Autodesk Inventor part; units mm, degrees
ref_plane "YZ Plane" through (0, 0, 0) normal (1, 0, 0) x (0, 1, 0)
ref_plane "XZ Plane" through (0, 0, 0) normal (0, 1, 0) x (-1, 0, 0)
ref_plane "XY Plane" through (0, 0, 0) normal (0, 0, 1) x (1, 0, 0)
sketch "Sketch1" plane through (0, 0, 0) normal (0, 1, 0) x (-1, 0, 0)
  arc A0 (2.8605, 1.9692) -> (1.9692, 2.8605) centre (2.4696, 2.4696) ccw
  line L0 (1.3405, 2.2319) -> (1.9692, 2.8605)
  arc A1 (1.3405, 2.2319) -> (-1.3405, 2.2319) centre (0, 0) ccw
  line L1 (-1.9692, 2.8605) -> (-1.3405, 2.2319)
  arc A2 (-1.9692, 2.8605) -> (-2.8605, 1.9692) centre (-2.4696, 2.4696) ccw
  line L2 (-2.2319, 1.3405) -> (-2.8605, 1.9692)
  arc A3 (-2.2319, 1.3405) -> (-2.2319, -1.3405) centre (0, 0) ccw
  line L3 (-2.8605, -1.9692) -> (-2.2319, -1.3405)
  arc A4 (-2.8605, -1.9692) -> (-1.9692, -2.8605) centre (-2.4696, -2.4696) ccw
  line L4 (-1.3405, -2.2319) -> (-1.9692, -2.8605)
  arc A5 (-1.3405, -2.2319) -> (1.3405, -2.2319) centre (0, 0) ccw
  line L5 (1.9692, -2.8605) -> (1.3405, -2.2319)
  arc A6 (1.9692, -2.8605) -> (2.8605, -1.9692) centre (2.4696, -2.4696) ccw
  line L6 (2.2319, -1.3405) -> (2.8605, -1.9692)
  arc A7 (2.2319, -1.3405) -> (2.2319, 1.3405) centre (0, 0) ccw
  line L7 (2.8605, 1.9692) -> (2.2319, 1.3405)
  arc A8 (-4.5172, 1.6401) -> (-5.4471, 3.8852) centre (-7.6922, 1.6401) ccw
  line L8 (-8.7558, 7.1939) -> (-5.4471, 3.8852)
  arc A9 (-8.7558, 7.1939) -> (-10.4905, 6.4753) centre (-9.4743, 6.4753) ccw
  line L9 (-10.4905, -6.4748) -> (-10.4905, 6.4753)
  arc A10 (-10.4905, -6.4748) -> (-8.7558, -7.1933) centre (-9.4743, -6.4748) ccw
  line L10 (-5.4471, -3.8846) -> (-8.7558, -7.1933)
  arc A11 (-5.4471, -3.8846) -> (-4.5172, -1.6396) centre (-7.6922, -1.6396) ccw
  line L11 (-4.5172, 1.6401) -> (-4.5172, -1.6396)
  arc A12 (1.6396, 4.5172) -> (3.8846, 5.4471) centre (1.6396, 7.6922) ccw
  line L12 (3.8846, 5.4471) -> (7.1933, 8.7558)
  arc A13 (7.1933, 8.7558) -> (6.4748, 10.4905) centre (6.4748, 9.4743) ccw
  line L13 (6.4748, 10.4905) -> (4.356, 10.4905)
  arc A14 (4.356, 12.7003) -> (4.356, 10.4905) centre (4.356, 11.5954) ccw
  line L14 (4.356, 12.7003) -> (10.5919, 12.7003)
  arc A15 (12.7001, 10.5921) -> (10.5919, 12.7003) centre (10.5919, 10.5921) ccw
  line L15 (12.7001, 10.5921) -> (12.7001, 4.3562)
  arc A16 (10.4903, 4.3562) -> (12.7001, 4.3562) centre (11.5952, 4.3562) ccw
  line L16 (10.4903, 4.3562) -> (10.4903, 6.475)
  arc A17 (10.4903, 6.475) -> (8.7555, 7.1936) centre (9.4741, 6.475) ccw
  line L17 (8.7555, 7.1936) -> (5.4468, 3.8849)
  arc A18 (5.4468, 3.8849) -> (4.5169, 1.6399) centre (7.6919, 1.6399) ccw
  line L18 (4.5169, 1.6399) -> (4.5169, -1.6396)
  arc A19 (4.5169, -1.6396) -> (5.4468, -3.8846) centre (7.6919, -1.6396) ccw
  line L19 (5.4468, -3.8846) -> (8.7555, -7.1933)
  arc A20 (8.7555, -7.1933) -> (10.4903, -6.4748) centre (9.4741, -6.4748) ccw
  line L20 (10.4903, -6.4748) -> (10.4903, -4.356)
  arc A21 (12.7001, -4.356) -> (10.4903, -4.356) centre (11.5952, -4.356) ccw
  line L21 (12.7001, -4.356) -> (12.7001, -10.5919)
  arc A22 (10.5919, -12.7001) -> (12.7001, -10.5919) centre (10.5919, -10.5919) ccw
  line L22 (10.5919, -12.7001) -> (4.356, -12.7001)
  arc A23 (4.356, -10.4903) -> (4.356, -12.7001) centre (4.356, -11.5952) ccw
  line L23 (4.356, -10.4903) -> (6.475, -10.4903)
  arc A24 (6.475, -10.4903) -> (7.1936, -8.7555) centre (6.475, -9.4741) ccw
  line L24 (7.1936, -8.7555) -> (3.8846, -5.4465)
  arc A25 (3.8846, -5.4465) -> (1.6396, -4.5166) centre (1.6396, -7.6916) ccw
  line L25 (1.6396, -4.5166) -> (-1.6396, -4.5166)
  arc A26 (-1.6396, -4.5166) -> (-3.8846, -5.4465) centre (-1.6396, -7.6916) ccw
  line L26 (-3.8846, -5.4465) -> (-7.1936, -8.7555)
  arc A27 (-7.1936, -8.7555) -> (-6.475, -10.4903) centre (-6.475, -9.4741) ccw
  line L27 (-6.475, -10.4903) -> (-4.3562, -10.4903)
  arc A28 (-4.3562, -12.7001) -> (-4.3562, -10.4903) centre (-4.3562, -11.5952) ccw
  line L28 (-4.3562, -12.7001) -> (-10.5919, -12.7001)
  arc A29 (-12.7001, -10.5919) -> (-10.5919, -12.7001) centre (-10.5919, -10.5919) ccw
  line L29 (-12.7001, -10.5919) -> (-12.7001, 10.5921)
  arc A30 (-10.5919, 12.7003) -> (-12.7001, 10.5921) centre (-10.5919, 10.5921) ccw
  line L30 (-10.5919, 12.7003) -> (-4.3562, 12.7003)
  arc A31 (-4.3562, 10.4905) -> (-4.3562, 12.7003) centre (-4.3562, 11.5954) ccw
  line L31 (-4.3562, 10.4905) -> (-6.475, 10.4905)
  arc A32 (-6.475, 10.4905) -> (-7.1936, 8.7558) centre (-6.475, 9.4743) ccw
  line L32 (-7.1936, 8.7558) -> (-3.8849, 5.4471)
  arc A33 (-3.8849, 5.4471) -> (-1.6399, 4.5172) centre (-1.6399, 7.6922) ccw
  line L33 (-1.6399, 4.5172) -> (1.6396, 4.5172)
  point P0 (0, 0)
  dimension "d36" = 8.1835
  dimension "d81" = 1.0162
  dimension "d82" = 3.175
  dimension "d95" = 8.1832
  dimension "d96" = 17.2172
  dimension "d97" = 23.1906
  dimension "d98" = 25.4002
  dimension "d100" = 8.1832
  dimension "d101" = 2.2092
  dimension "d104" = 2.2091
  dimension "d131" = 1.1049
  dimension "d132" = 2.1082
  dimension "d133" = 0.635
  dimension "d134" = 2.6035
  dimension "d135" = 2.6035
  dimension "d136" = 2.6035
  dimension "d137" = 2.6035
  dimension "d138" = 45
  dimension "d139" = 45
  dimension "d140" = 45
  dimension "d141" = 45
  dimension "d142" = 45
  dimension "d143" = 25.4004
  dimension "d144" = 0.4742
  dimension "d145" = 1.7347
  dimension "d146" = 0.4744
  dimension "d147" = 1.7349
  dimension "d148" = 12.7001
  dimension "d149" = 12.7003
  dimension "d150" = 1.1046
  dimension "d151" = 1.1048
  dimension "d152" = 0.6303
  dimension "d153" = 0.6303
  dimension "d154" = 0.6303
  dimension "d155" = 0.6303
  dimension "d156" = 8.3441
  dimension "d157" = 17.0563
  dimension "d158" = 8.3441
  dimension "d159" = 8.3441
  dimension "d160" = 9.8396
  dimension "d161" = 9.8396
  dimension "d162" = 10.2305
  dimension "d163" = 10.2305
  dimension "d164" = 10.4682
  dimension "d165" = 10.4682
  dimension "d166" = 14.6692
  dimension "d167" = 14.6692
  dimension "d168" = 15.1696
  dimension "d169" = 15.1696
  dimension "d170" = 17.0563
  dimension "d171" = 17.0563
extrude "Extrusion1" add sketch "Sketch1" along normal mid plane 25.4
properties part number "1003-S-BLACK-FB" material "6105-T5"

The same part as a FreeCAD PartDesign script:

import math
import FreeCAD as App
import Part
import Sketcher
from FreeCAD import Vector
Q = App.Units.Quantity

doc = App.newDocument("Part")
body = doc.addObject("PartDesign::Body", "Body")

# Sketch on XZ plane
sketch1 = body.newObject("Sketcher::SketchObject", "Sketch")
sketch1.AttachmentSupport = (doc.getObject("XZ_Plane"), [""])
sketch1.MapMode = "FlatFace"
sketch1.addGeometry([
    Part.ArcOfCircle(Part.Circle(Vector(-1.6396, 7.6922, 0), Vector(0, 0, 1), 3.175), math.radians(-134.998724), math.radians(-90)),  # 0
    Part.LineSegment(Vector(-1.6396, 4.5172, 0), Vector(1.6399, 4.5172, 0)),  # 1
    Part.ArcOfCircle(Part.Circle(Vector(1.6399, 7.6922, 0), Vector(0, 0, 1), 3.17498), math.radians(-90), math.radians(-45.001276)),  # 2
    Part.LineSegment(Vector(3.8849, 5.4471, 0), Vector(7.1936, 8.7558, 0)),  # 3
    Part.ArcOfCircle(Part.Circle(Vector(6.475, 9.4743, 0), Vector(0, 0, 1), 1.0162), math.radians(-44.996013), math.radians(90)),  # 4
    Part.LineSegment(Vector(6.475, 10.4905, 0), Vector(4.3562, 10.4905, 0)),  # 5
    Part.ArcOfCircle(Part.Circle(Vector(4.3562, 11.5954, 0), Vector(0, 0, 1), 1.1049), math.radians(90), math.radians(270)),  # 6
    Part.LineSegment(Vector(4.3562, 12.7003, 0), Vector(10.5919, 12.7003, 0)),  # 7
    Part.ArcOfCircle(Part.Circle(Vector(10.5919, 10.5921, 0), Vector(0, 0, 1), 2.1082), math.radians(0), math.radians(90)),  # 8
    Part.LineSegment(Vector(12.7001, 10.5921, 0), Vector(12.7001, -10.5919, 0)),  # 9
    Part.ArcOfCircle(Part.Circle(Vector(10.5919, -10.5919, 0), Vector(0, 0, 1), 2.1082), math.radians(-90), math.radians(0)),  # 10
    Part.LineSegment(Vector(10.5919, -12.7001, 0), Vector(4.3562, -12.7001, 0)),  # 11
    Part.ArcOfCircle(Part.Circle(Vector(4.3562, -11.5952, 0), Vector(0, 0, 1), 1.1049), math.radians(90), math.radians(270)),  # 12
    Part.LineSegment(Vector(4.3562, -10.4903, 0), Vector(6.475, -10.4903, 0)),  # 13
    Part.ArcOfCircle(Part.Circle(Vector(6.475, -9.4741, 0), Vector(0, 0, 1), 1.016254), math.radians(-90), math.radians(45)),  # 14
    Part.LineSegment(Vector(7.1936, -8.7555, 0), Vector(3.8846, -5.4465, 0)),  # 15
    Part.ArcOfCircle(Part.Circle(Vector(1.6396, -7.6916, 0), Vector(0, 0, 1), 3.175), math.radians(45.001276), math.radians(90)),  # 16
    Part.LineSegment(Vector(1.6396, -4.5166, 0), Vector(-1.6396, -4.5166, 0)),  # 17
    Part.ArcOfCircle(Part.Circle(Vector(-1.6396, -7.6916, 0), Vector(0, 0, 1), 3.17498), math.radians(90), math.radians(134.998724)),  # 18
    Part.LineSegment(Vector(-3.8846, -5.4465, 0), Vector(-7.1936, -8.7555, 0)),  # 19
    Part.ArcOfCircle(Part.Circle(Vector(-6.475, -9.4741, 0), Vector(0, 0, 1), 1.0162), math.radians(135), math.radians(270)),  # 20
    Part.LineSegment(Vector(-6.475, -10.4903, 0), Vector(-4.356, -10.4903, 0)),  # 21
    Part.ArcOfCircle(Part.Circle(Vector(-4.356, -11.5952, 0), Vector(0, 0, 1), 1.1049), math.radians(-90), math.radians(90)),  # 22
    Part.LineSegment(Vector(-4.356, -12.7001, 0), Vector(-10.5919, -12.7001, 0)),  # 23
    Part.ArcOfCircle(Part.Circle(Vector(-10.5919, -10.5919, 0), Vector(0, 0, 1), 2.1082), math.radians(180), math.radians(270)),  # 24
    Part.LineSegment(Vector(-12.7001, -10.5919, 0), Vector(-12.7001, -4.356, 0)),  # 25
    Part.ArcOfCircle(Part.Circle(Vector(-11.5952, -4.356, 0), Vector(0, 0, 1), 1.1049), math.radians(0), math.radians(180)),  # 26
    Part.LineSegment(Vector(-10.4903, -4.356, 0), Vector(-10.4903, -6.4748, 0)),  # 27
    Part.ArcOfCircle(Part.Circle(Vector(-9.4741, -6.4748, 0), Vector(0, 0, 1), 1.016183), math.radians(180), math.radians(315.003987)),  # 28
    Part.LineSegment(Vector(-8.7555, -7.1933, 0), Vector(-5.4468, -3.8846, 0)),  # 29
    Part.ArcOfCircle(Part.Circle(Vector(-7.6919, -1.6396, 0), Vector(0, 0, 1), 3.175), math.radians(-44.998724), math.radians(0)),  # 30
    Part.LineSegment(Vector(-4.5169, -1.6396, 0), Vector(-4.5169, 1.6399, 0)),  # 31
    Part.ArcOfCircle(Part.Circle(Vector(-7.6919, 1.6399, 0), Vector(0, 0, 1), 3.17498), math.radians(0), math.radians(44.998724)),  # 32
    Part.LineSegment(Vector(-5.4468, 3.8849, 0), Vector(-8.7555, 7.1936, 0)),  # 33
    Part.ArcOfCircle(Part.Circle(Vector(-9.4741, 6.475, 0), Vector(0, 0, 1), 1.0162), math.radians(45), math.radians(180)),  # 34
    Part.LineSegment(Vector(-10.4903, 6.475, 0), Vector(-10.4903, 4.3562, 0)),  # 35
    Part.ArcOfCircle(Part.Circle(Vector(-11.5952, 4.3562, 0), Vector(0, 0, 1), 1.1049), math.radians(180), math.radians(360)),  # 36
    Part.LineSegment(Vector(-12.7001, 4.3562, 0), Vector(-12.7001, 10.5921, 0)),  # 37
    Part.ArcOfCircle(Part.Circle(Vector(-10.5919, 10.5921, 0), Vector(0, 0, 1), 2.1082), math.radians(90), math.radians(180)),  # 38
    Part.LineSegment(Vector(-10.5919, 12.7003, 0), Vector(-4.356, 12.7003, 0)),  # 39
    Part.ArcOfCircle(Part.Circle(Vector(-4.356, 11.5954, 0), Vector(0, 0, 1), 1.1049), math.radians(-90), math.radians(90)),  # 40
    Part.LineSegment(Vector(-4.356, 10.4905, 0), Vector(-6.4748, 10.4905, 0)),  # 41
    Part.ArcOfCircle(Part.Circle(Vector(-6.4748, 9.4743, 0), Vector(0, 0, 1), 1.016112), math.radians(90), math.radians(225)),  # 42
    Part.LineSegment(Vector(-7.1933, 8.7558, 0), Vector(-3.8846, 5.4471, 0)),  # 43
    Part.ArcOfCircle(Part.Circle(Vector(-2.4696, 2.4696, 0), Vector(0, 0, 1), 0.634983), math.radians(37.996066), math.radians(232.003934)),  # 44
    Part.LineSegment(Vector(-2.8605, 1.9692, 0), Vector(-2.2319, 1.3405, 0)),  # 45
    Part.ArcOfCircle(Part.Circle(Vector(0, 0, 0), Vector(0, 0, 1), 2.60352), math.radians(149.010579), math.radians(210.989421)),  # 46
    Part.LineSegment(Vector(-2.2319, -1.3405, 0), Vector(-2.8605, -1.9692, 0)),  # 47
    Part.ArcOfCircle(Part.Circle(Vector(-2.4696, -2.4696, 0), Vector(0, 0, 1), 0.634983), math.radians(127.996066), math.radians(322.003934)),  # 48
    Part.LineSegment(Vector(-1.9692, -2.8605, 0), Vector(-1.3405, -2.2319, 0)),  # 49
    Part.ArcOfCircle(Part.Circle(Vector(0, 0, 0), Vector(0, 0, 1), 2.60352), math.radians(-120.989421), math.radians(-59.010579)),  # 50
    Part.LineSegment(Vector(1.3405, -2.2319, 0), Vector(1.9692, -2.8605, 0)),  # 51
    Part.ArcOfCircle(Part.Circle(Vector(2.4696, -2.4696, 0), Vector(0, 0, 1), 0.634983), math.radians(-142.003934), math.radians(52.003934)),  # 52
    Part.LineSegment(Vector(2.8605, -1.9692, 0), Vector(2.2319, -1.3405, 0)),  # 53
    Part.ArcOfCircle(Part.Circle(Vector(0, 0, 0), Vector(0, 0, 1), 2.60352), math.radians(-30.989421), math.radians(30.989421)),  # 54
    Part.LineSegment(Vector(2.2319, 1.3405, 0), Vector(2.8605, 1.9692, 0)),  # 55
    Part.ArcOfCircle(Part.Circle(Vector(2.4696, 2.4696, 0), Vector(0, 0, 1), 0.634983), math.radians(-52.003934), math.radians(142.003934)),  # 56
    Part.LineSegment(Vector(1.9692, 2.8605, 0), Vector(1.3405, 2.2319, 0)),  # 57
    Part.ArcOfCircle(Part.Circle(Vector(0, 0, 0), Vector(0, 0, 1), 2.60352), math.radians(59.010579), math.radians(120.989421)),  # 58
    Part.LineSegment(Vector(-1.3405, 2.2319, 0), Vector(-1.9692, 2.8605, 0)),  # 59
    Part.ArcOfCircle(Part.Circle(Vector(7.6922, 1.6401, 0), Vector(0, 0, 1), 3.175), math.radians(135), math.radians(180)),  # 60
    Part.LineSegment(Vector(4.5172, 1.6401, 0), Vector(4.5172, -1.6396, 0)),  # 61
    Part.ArcOfCircle(Part.Circle(Vector(7.6922, -1.6396, 0), Vector(0, 0, 1), 3.17498), math.radians(180), math.radians(224.998724)),  # 62
    Part.LineSegment(Vector(5.4471, -3.8846, 0), Vector(8.7558, -7.1933, 0)),  # 63
    Part.ArcOfCircle(Part.Circle(Vector(9.4743, -6.4748, 0), Vector(0, 0, 1), 1.0162), math.radians(-135), math.radians(0)),  # 64
    Part.LineSegment(Vector(10.4905, -6.4748, 0), Vector(10.4905, 6.4753, 0)),  # 65
    Part.ArcOfCircle(Part.Circle(Vector(9.4743, 6.4753, 0), Vector(0, 0, 1), 1.016183), math.radians(0), math.radians(134.996013)),  # 66
    Part.LineSegment(Vector(8.7558, 7.1939, 0), Vector(5.4471, 3.8852, 0)),  # 67
], False)
sketch1.addConstraint([
    Sketcher.Constraint("Tangent", 0, 2, 1, 1),
    Sketcher.Constraint("Tangent", 1, 2, 2, 1),
    Sketcher.Constraint("Tangent", 2, 2, 3, 1),
    Sketcher.Constraint("Tangent", 3, 2, 4, 1),
    Sketcher.Constraint("Tangent", 4, 2, 5, 1),
    Sketcher.Constraint("Tangent", 5, 2, 6, 2),
    Sketcher.Constraint("Tangent", 6, 1, 7, 1),
    Sketcher.Constraint("Tangent", 7, 2, 8, 2),
    Sketcher.Constraint("Tangent", 8, 1, 9, 1),
    Sketcher.Constraint("Tangent", 9, 2, 10, 2),
    Sketcher.Constraint("Tangent", 10, 1, 11, 1),
    Sketcher.Constraint("Tangent", 11, 2, 12, 2),
    Sketcher.Constraint("Tangent", 12, 1, 13, 1),
    Sketcher.Constraint("Tangent", 13, 2, 14, 1),
    Sketcher.Constraint("Tangent", 14, 2, 15, 1),
    Sketcher.Constraint("Tangent", 15, 2, 16, 1),
    Sketcher.Constraint("Tangent", 16, 2, 17, 1),
    Sketcher.Constraint("Tangent", 17, 2, 18, 1),
    Sketcher.Constraint("Tangent", 18, 2, 19, 1),
    Sketcher.Constraint("Tangent", 19, 2, 20, 1),
    Sketcher.Constraint("Tangent", 20, 2, 21, 1),
    Sketcher.Constraint("Tangent", 21, 2, 22, 2),
    Sketcher.Constraint("Tangent", 22, 1, 23, 1),
    Sketcher.Constraint("Tangent", 23, 2, 24, 2),
    Sketcher.Constraint("Tangent", 24, 1, 25, 1),
    Sketcher.Constraint("Tangent", 25, 2, 26, 2),
    Sketcher.Constraint("Tangent", 26, 1, 27, 1),
    Sketcher.Constraint("Tangent", 27, 2, 28, 1),
    Sketcher.Constraint("Tangent", 28, 2, 29, 1),
    Sketcher.Constraint("Tangent", 29, 2, 30, 1),
    Sketcher.Constraint("Tangent", 30, 2, 31, 1),
    Sketcher.Constraint("Tangent", 31, 2, 32, 1),
    Sketcher.Constraint("Tangent", 32, 2, 33, 1),
    Sketcher.Constraint("Tangent", 33, 2, 34, 1),
    Sketcher.Constraint("Tangent", 34, 2, 35, 1),
    Sketcher.Constraint("Tangent", 35, 2, 36, 2),
    Sketcher.Constraint("Tangent", 36, 1, 37, 1),
    Sketcher.Constraint("Tangent", 37, 2, 38, 2),
    Sketcher.Constraint("Tangent", 38, 1, 39, 1),
    Sketcher.Constraint("Tangent", 39, 2, 40, 2),
    Sketcher.Constraint("Tangent", 40, 1, 41, 1),
    Sketcher.Constraint("Tangent", 41, 2, 42, 1),
    Sketcher.Constraint("Tangent", 42, 2, 43, 1),
    Sketcher.Constraint("Tangent", 43, 2, 0, 1),
    Sketcher.Constraint("Coincident", 44, 2, 45, 1),
    Sketcher.Constraint("Coincident", 45, 2, 46, 1),
    Sketcher.Constraint("Coincident", 46, 2, 47, 1),
    Sketcher.Constraint("Coincident", 47, 2, 48, 1),
    Sketcher.Constraint("Coincident", 48, 2, 49, 1),
    Sketcher.Constraint("Coincident", 49, 2, 50, 1),
    Sketcher.Constraint("Coincident", 50, 2, 51, 1),
    Sketcher.Constraint("Coincident", 51, 2, 52, 1),
    Sketcher.Constraint("Coincident", 52, 2, 53, 1),
    Sketcher.Constraint("Coincident", 53, 2, 54, 1),
    Sketcher.Constraint("Coincident", 54, 2, 55, 1),
    Sketcher.Constraint("Coincident", 55, 2, 56, 1),
    Sketcher.Constraint("Coincident", 56, 2, 57, 1),
    Sketcher.Constraint("Coincident", 57, 2, 58, 1),
    Sketcher.Constraint("Coincident", 58, 2, 59, 1),
    Sketcher.Constraint("Coincident", 59, 2, 44, 1),
    Sketcher.Constraint("Tangent", 60, 2, 61, 1),
    Sketcher.Constraint("Tangent", 61, 2, 62, 1),
    Sketcher.Constraint("Tangent", 62, 2, 63, 1),
    Sketcher.Constraint("Tangent", 63, 2, 64, 1),
    Sketcher.Constraint("Tangent", 64, 2, 65, 1),
    Sketcher.Constraint("Tangent", 65, 2, 66, 1),
    Sketcher.Constraint("Tangent", 66, 2, 67, 1),
    Sketcher.Constraint("Tangent", 67, 2, 60, 1),
    Sketcher.Constraint("Horizontal", 1),
    Sketcher.Constraint("Horizontal", 5),
    Sketcher.Constraint("Horizontal", 7),
    Sketcher.Constraint("Vertical", 9),
    Sketcher.Constraint("Horizontal", 11),
    Sketcher.Constraint("Horizontal", 13),
    Sketcher.Constraint("Horizontal", 17),
    Sketcher.Constraint("Horizontal", 21),
    Sketcher.Constraint("Horizontal", 23),
    Sketcher.Constraint("Vertical", 25),
    Sketcher.Constraint("Vertical", 27),
    Sketcher.Constraint("Vertical", 31),
    Sketcher.Constraint("Vertical", 35),
    Sketcher.Constraint("Vertical", 37),
    Sketcher.Constraint("Horizontal", 39),
    Sketcher.Constraint("Horizontal", 41),
    Sketcher.Constraint("Vertical", 61),
    Sketcher.Constraint("Vertical", 65),
    Sketcher.Constraint("Coincident", 46, 3, -1, 1),
    Sketcher.Constraint("Coincident", 50, 3, -1, 1),
    Sketcher.Constraint("Coincident", 54, 3, -1, 1),
    Sketcher.Constraint("Coincident", 58, 3, -1, 1),
    Sketcher.Constraint("Equal", 0, 2),
    Sketcher.Constraint("Equal", 8, 10),
    Sketcher.Constraint("Equal", 6, 12),
    Sketcher.Constraint("Equal", 4, 14),
    Sketcher.Constraint("Equal", 2, 16),
    Sketcher.Constraint("Equal", 16, 18),
    Sketcher.Constraint("Equal", 14, 20),
    Sketcher.Constraint("Equal", 12, 22),
    Sketcher.Constraint("Equal", 10, 24),
    Sketcher.Constraint("Equal", 22, 26),
    Sketcher.Constraint("Equal", 20, 28),
    Sketcher.Constraint("Equal", 18, 30),
    Sketcher.Constraint("Equal", 30, 32),
    Sketcher.Constraint("Equal", 28, 34),
    Sketcher.Constraint("Equal", 26, 36),
    Sketcher.Constraint("Equal", 24, 38),
    Sketcher.Constraint("Equal", 36, 40),
    Sketcher.Constraint("Equal", 34, 42),
    Sketcher.Constraint("Equal", 44, 48),
    Sketcher.Constraint("Equal", 46, 50),
    Sketcher.Constraint("Equal", 48, 52),
    Sketcher.Constraint("Equal", 50, 54),
    Sketcher.Constraint("Equal", 52, 56),
    Sketcher.Constraint("Equal", 54, 58),
    Sketcher.Constraint("Equal", 32, 60),
    Sketcher.Constraint("Equal", 60, 62),
    Sketcher.Constraint("Equal", 42, 64),
    Sketcher.Constraint("Equal", 64, 66),
    Sketcher.Constraint("Symmetric", 4, 3, 20, 3, -1, 1),
    Sketcher.Constraint("Symmetric", 10, 3, 38, 3, -1, 1),
    Sketcher.Constraint("Symmetric", 44, 3, 52, 3, -1, 1),
    Sketcher.Constraint("Symmetric", 48, 3, 56, 3, -1, 1),
    Sketcher.Constraint("Symmetric", 34, 3, 64, 3, -1, 1),
    Sketcher.Constraint("Symmetric", 14, 3, 20, 3, -2),
    Sketcher.Constraint("Symmetric", 48, 3, 52, 3, -2),
    Sketcher.Constraint("Symmetric", 32, 3, 60, 3, -2),
    Sketcher.Constraint("Symmetric", 28, 3, 64, 3, -2),
    Sketcher.Constraint("Symmetric", 3, 2, 42, 2, -2),
    Sketcher.Constraint("Perpendicular", 3, 15),
    Sketcher.Constraint("Perpendicular", 15, 19),
    Sketcher.Constraint("Parallel", 19, 29),
    Sketcher.Constraint("Perpendicular", 29, 33),
    Sketcher.Constraint("Parallel", 33, 43),
    Sketcher.Constraint("Parallel", 43, 45),
    Sketcher.Constraint("Perpendicular", 45, 47),
    Sketcher.Constraint("Parallel", 47, 49),
    Sketcher.Constraint("Perpendicular", 49, 51),
    Sketcher.Constraint("Parallel", 51, 53),
    Sketcher.Constraint("Perpendicular", 53, 55),
    Sketcher.Constraint("Parallel", 55, 57),
    Sketcher.Constraint("Perpendicular", 57, 59),
    Sketcher.Constraint("Parallel", 59, 63),
    Sketcher.Constraint("Perpendicular", 63, 67),
    Sketcher.Constraint("Horizontal", 49, 2, 50, 2),
    Sketcher.Constraint("Horizontal", 47, 2, 52, 2),
    Sketcher.Constraint("Horizontal", 45, 2, 54, 2),
    Sketcher.Constraint("Horizontal", 57, 2, 58, 2),
    Sketcher.Constraint("Vertical", 6, 3, 12, 3),
    Sketcher.Constraint("Vertical", 0, 3, 18, 3),
    Sketcher.Constraint("Vertical", 22, 3, 40, 3),
    Sketcher.Constraint("Vertical", 45, 2, 46, 2),
    Sketcher.Constraint("Vertical", 51, 2, 56, 2),
    Sketcher.Constraint("Equal", 13, 41),
    Sketcher.Constraint("Equal", 39, 25),
    Sketcher.Constraint("Equal", 41, 27),
    Sketcher.Constraint("Equal", 1, 31),
    Sketcher.Constraint("Equal", 27, 35),
    Sketcher.Constraint("Equal", 3, 29),
    Sketcher.Constraint("Equal", 47, 49),
    Sketcher.Constraint("Radius", 4, Q("0.04 in")),
    Sketcher.Constraint("Radius", 0, Q("0.125 in")),
    Sketcher.Constraint("Radius", 8, Q("0.083 in")),
    Sketcher.Constraint("Radius", 44, Q("0.025 in")),
    Sketcher.Constraint("DistanceY", -1, 1, 6, 1, Q("0.5 in")),
    Sketcher.Constraint("Radius", 6, Q("0.0435 in")),
    Sketcher.Constraint("Radius", 46, Q("0.1025 in")),
    Sketcher.Constraint("Distance", 45, Q("0.035 in")),
    Sketcher.Constraint("DistanceX", 7, 1, 7, 2, Q("0.2455 in")),
    Sketcher.Constraint("DistanceX", 17, 2, 17, 1, Q("0.1291 in")),
    Sketcher.Constraint("DistanceX", 5, 2, 5, 1, Q("2.1188 mm")),
    Sketcher.Constraint("DistanceX", 44, 3, -1, 1, Q("2.4696 mm")),
    Sketcher.Constraint("DistanceY", -1, 1, 44, 3, Q("2.4696 mm")),
])
pad1 = body.newObject("PartDesign::Pad", "Pad")
pad1.Profile = sketch1
pad1.Length = Q("1 in")
pad1.Midplane = True

doc.recompute()
